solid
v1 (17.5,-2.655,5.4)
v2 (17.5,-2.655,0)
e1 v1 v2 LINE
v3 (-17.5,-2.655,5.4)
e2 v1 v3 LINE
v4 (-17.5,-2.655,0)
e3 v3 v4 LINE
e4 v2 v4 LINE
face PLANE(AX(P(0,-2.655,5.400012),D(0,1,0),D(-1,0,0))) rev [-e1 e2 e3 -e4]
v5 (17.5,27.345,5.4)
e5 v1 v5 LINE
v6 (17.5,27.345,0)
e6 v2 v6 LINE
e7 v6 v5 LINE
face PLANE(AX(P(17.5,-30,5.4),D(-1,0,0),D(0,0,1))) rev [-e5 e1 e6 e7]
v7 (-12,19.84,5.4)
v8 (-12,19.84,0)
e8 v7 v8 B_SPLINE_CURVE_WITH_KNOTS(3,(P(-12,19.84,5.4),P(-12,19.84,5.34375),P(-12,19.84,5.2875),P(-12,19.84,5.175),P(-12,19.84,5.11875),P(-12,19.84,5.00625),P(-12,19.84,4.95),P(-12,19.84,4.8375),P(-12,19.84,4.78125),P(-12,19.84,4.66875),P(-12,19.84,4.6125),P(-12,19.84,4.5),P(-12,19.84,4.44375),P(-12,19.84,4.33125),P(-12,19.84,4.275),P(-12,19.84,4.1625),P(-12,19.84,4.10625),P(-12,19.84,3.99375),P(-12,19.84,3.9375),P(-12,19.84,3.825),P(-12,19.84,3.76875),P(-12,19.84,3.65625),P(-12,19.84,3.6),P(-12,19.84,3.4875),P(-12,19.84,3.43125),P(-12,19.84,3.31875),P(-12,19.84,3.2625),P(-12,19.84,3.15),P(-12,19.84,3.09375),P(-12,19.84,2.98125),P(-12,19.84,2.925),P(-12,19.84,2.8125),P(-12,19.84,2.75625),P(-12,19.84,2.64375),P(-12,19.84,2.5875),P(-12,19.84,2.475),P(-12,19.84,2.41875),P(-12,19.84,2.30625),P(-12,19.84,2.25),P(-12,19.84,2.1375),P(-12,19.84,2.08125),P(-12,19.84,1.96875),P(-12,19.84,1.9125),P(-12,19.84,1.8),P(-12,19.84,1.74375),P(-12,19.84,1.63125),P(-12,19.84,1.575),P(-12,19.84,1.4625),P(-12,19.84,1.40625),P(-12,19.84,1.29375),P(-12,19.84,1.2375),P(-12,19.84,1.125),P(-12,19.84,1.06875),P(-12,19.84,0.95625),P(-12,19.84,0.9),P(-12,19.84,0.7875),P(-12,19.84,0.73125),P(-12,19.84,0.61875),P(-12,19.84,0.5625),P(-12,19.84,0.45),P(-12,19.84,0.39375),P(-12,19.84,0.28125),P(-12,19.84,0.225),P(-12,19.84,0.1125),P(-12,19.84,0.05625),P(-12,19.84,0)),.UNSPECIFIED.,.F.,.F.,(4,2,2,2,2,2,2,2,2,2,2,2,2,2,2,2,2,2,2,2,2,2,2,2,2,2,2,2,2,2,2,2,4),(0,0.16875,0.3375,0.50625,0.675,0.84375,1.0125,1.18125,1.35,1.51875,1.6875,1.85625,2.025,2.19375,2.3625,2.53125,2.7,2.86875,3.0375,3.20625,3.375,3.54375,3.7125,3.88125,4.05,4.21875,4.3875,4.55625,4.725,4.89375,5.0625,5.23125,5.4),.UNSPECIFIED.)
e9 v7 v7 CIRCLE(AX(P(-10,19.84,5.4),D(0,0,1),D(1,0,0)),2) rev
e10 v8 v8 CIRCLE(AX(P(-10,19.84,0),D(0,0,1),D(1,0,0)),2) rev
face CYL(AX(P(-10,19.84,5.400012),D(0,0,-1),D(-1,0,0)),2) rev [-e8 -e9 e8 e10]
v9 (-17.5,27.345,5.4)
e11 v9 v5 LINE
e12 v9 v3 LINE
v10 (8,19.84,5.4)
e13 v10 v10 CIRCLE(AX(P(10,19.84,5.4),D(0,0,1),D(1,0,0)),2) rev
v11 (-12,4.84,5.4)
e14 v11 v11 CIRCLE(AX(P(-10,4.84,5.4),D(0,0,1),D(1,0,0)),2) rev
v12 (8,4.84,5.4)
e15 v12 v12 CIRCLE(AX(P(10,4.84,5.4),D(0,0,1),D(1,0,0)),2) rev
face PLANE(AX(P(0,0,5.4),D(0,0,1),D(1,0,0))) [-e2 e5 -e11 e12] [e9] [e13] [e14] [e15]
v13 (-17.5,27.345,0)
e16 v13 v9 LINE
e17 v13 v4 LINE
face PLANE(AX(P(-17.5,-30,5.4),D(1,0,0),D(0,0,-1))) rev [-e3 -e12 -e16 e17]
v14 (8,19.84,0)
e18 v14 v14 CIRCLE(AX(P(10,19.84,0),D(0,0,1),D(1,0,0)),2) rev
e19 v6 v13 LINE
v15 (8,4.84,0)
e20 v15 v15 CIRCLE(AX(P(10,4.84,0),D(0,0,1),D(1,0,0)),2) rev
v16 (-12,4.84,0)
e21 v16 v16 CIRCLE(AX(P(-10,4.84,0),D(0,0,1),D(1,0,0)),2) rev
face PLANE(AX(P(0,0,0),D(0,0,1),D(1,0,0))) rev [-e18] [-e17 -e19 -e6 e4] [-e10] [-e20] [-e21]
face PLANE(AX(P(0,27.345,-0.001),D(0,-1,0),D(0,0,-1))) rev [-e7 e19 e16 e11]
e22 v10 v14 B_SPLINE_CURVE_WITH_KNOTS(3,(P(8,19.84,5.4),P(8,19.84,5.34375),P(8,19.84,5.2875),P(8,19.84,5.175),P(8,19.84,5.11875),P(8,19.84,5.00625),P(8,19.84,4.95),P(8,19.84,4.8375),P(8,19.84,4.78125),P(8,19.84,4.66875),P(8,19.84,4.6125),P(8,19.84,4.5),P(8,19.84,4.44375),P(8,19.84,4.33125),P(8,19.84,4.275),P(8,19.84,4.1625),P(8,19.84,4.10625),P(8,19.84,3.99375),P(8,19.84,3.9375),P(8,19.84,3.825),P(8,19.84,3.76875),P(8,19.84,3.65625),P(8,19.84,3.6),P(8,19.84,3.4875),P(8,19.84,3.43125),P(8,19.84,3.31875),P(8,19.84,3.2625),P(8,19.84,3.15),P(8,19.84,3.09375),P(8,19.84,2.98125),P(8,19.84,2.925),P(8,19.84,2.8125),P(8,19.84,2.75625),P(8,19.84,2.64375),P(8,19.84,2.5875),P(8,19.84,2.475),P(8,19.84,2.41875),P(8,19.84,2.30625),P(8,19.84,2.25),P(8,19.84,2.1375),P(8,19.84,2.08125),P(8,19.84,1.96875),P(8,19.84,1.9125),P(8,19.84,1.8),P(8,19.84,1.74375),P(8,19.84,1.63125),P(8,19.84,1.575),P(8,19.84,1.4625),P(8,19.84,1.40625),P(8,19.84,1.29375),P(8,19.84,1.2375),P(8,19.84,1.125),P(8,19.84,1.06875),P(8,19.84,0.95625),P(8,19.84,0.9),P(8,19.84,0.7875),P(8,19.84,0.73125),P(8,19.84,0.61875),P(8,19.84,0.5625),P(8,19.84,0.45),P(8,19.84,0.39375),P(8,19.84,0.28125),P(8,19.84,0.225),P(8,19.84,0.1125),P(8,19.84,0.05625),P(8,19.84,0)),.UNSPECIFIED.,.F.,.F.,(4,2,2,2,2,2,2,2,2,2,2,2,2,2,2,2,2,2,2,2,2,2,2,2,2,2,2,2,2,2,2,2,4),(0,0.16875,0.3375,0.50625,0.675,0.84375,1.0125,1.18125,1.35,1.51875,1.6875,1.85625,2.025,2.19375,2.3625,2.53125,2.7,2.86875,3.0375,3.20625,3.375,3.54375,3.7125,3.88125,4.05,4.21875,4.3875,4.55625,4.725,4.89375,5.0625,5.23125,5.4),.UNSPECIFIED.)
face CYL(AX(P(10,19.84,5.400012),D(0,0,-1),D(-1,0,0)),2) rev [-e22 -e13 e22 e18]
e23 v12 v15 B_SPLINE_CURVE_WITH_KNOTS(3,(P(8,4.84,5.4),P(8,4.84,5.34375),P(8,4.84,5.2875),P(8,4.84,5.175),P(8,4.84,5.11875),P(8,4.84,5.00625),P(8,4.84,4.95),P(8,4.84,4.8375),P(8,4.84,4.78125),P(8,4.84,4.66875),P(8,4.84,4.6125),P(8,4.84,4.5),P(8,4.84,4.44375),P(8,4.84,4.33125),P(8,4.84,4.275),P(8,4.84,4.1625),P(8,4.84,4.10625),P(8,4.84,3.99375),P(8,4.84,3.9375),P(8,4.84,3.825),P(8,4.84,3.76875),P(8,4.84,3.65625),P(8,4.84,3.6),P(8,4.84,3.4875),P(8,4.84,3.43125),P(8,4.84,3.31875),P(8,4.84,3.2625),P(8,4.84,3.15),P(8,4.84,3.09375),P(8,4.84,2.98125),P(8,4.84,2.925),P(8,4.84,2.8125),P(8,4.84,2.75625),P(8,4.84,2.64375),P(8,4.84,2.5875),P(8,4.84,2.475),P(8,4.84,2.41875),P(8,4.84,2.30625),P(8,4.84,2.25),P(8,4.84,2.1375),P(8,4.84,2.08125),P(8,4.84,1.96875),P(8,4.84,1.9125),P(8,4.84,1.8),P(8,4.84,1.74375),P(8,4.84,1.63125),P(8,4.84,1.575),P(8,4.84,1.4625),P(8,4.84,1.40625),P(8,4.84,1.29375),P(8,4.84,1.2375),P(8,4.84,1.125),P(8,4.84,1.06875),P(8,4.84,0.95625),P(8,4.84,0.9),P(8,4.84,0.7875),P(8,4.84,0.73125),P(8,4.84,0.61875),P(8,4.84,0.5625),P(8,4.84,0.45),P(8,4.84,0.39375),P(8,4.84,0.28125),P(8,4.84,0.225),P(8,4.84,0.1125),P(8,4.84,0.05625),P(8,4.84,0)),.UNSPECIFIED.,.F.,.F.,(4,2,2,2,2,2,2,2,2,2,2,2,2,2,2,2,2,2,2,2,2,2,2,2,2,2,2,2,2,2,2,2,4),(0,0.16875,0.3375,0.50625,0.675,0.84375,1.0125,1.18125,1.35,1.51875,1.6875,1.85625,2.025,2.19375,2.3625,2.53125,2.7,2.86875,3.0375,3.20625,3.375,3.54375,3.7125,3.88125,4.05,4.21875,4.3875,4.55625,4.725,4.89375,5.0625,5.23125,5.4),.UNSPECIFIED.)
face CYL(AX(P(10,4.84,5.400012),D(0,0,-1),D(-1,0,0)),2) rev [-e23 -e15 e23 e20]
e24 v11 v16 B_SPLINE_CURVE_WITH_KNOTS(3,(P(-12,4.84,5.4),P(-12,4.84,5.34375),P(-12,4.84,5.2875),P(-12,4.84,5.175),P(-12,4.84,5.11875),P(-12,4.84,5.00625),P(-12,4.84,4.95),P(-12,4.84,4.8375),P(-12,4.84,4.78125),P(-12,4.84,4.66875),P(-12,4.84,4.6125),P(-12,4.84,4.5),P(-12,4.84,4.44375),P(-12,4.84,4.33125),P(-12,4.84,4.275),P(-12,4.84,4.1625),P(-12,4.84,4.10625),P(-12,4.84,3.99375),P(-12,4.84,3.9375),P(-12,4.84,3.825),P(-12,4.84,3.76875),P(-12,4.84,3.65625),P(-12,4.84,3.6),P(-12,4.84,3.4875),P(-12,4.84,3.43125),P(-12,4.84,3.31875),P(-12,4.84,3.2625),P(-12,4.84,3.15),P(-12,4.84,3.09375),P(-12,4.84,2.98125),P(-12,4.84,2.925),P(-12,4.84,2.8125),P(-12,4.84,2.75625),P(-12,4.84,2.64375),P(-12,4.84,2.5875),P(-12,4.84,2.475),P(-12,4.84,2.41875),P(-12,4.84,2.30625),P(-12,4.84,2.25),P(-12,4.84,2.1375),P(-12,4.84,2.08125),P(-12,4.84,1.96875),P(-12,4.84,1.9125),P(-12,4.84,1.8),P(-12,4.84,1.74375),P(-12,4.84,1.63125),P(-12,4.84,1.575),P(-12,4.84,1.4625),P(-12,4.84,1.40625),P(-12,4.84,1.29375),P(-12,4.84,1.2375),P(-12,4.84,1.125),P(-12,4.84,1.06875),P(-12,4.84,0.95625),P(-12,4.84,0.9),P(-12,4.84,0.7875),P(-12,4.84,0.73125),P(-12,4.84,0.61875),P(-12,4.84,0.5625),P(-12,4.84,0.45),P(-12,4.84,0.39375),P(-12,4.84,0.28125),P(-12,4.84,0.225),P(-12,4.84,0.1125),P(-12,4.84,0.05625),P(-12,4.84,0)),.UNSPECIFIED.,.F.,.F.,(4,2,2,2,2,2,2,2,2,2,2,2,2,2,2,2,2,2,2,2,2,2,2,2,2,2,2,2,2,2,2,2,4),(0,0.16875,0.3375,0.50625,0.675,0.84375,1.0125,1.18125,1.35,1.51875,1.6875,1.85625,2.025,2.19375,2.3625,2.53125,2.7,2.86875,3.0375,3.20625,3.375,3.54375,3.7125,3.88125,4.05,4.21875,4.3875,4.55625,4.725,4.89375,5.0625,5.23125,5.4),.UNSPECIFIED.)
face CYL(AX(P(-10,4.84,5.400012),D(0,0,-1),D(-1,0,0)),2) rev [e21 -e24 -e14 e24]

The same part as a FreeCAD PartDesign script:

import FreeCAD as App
import Part
import Sketcher

V = App.Vector
Q = App.Units.Quantity


def add_polygon(sketch, points):
    """Adds a closed chain of lines whose ends are joined by coincident constraints."""
    first, n = sketch.GeometryCount, len(points)
    for a, b in zip(points, points[1:] + points[:1]):
        sketch.addGeometry(Part.LineSegment(App.Vector(*a, 0), App.Vector(*b, 0)), False)
    for i in range(n):
        sketch.addConstraint(Sketcher.Constraint("Coincident", first + i, 2, first + (i + 1) % n, 1))

doc = App.newDocument("Part")
body = doc.addObject("PartDesign::Body", "Body")
body.AllowCompound = True

# Sketch on XY plane
sketch1 = body.newObject("Sketcher::SketchObject", "Sketch")
sketch1.AttachmentSupport = (doc.getObject("XY_Plane"), [""])
sketch1.MapMode = "FlatFace"
add_polygon(sketch1, [(-18, 30), (-18, -30), (18, -30), (18, 30)])  # lines 0-3
sketch1.addConstraint([
    Sketcher.Constraint("Vertical", 0),
    Sketcher.Constraint("Horizontal", 1),
    Sketcher.Constraint("Vertical", 2),
    Sketcher.Constraint("Horizontal", 3),
    Sketcher.Constraint("Symmetric", 0, 2, 2, 2, -1, 1),
    Sketcher.Constraint("DistanceX", 1, 1, 1, 2, Q("35 mm")),
    Sketcher.Constraint("DistanceY", 0, 2, 0, 1, Q("60 mm")),
])
pad1 = body.newObject("PartDesign::Pad", "Pad")
pad1.Profile = sketch1
pad1.Length = 5.4

# Sketch on XY plane
sketch2 = body.newObject("Sketcher::SketchObject", "Sketch001")
sketch2.AttachmentSupport = (doc.getObject("XY_Plane"), [""])
sketch2.MapMode = "FlatFace"
sketch2.AttachmentOffset = App.Placement(V(0, 0, 5.4), App.Rotation())
add_polygon(sketch2, [(-17.5, 30), (-17.5, 27.3), (17.5, 27.3), (17.5, 30)])  # lines 0-3
sketch2.addConstraint([
    Sketcher.Constraint("Vertical", 0),
    Sketcher.Constraint("Horizontal", 1),
    Sketcher.Constraint("Vertical", 2),
    Sketcher.Constraint("Horizontal", 3),
    Sketcher.Constraint("DistanceX", 1, 1, 1, 2, Q("35 mm")),
    Sketcher.Constraint("DistanceY", -1, 1, 2, 2, Q("30 mm")),
    Sketcher.Constraint("DistanceX", 0, 2, -1, 1, Q("17.5 mm")),
    Sketcher.Constraint("DistanceY", 0, 2, 0, 1, Q("2.655 mm")),
])
pocket1 = body.newObject("PartDesign::Pocket", "Pocket")
pocket1.Profile = sketch2
pocket1.Type = "UpToFirst"

# Sketch on XY plane
sketch3 = body.newObject("Sketcher::SketchObject", "Sketch002")
sketch3.AttachmentSupport = (doc.getObject("XY_Plane"), [""])
sketch3.MapMode = "FlatFace"
sketch3.AttachmentOffset = App.Placement(V(0, 0, 5.4), App.Rotation())
sketch3.addGeometry(Part.Circle(V(-10, 19.8, 0), V(0, 0, 1), 2), False)
sketch3.addConstraint([
    Sketcher.Constraint("Diameter", 0, Q("4 mm")),
    Sketcher.Constraint("DistanceX", 0, 3, -1, 1, Q("10 mm")),
    Sketcher.Constraint("DistanceY", -1, 1, 0, 3, Q("19.84 mm")),
])
pocket2 = body.newObject("PartDesign::Pocket", "Pocket001")
pocket2.Profile = sketch3
pocket2.Type = "UpToFirst"

# Sketch on XY plane
sketch4 = body.newObject("Sketcher::SketchObject", "Sketch003")
sketch4.AttachmentSupport = (doc.getObject("XY_Plane"), [""])
sketch4.MapMode = "FlatFace"
sketch4.AttachmentOffset = App.Placement(V(0, 0, 5.4), App.Rotation())
sketch4.addGeometry(Part.Circle(V(10, 19.8, 0), V(0, 0, 1), 2), False)
sketch4.addConstraint([
    Sketcher.Constraint("Diameter", 0, Q("4 mm")),
    Sketcher.Constraint("DistanceX", -1, 1, 0, 3, Q("10 mm")),
    Sketcher.Constraint("DistanceY", -1, 1, 0, 3, Q("19.84 mm")),
])
pocket3 = body.newObject("PartDesign::Pocket", "Pocket002")
pocket3.Profile = sketch4
pocket3.Type = "UpToFirst"

# Sketch on XY plane
sketch5 = body.newObject("Sketcher::SketchObject", "Sketch004")
sketch5.AttachmentSupport = (doc.getObject("XY_Plane"), [""])
sketch5.MapMode = "FlatFace"
sketch5.AttachmentOffset = App.Placement(V(0, 0, 5.4), App.Rotation())
sketch5.addGeometry(Part.Circle(V(-10, 4.8, 0), V(0, 0, 1), 2), False)
sketch5.addConstraint([
    Sketcher.Constraint("Diameter", 0, Q("4 mm")),
    Sketcher.Constraint("DistanceX", 0, 3, -1, 1, Q("10 mm")),
    Sketcher.Constraint("DistanceY", -1, 1, 0, 3, Q("4.84 mm")),
])
pocket4 = body.newObject("PartDesign::Pocket", "Pocket003")
pocket4.Profile = sketch5
pocket4.Type = "UpToFirst"

# Sketch on XY plane
sketch6 = body.newObject("Sketcher::SketchObject", "Sketch005")
sketch6.AttachmentSupport = (doc.getObject("XY_Plane"), [""])
sketch6.MapMode = "FlatFace"
sketch6.AttachmentOffset = App.Placement(V(0, 0, 5.4), App.Rotation())
sketch6.addGeometry(Part.Circle(V(10, 4.8, 0), V(0, 0, 1), 2), False)
sketch6.addConstraint([
    Sketcher.Constraint("Diameter", 0, Q("4 mm")),
    Sketcher.Constraint("DistanceX", -1, 1, 0, 3, Q("10 mm")),
    Sketcher.Constraint("DistanceY", -1, 1, 0, 3, Q("4.84 mm")),
])
pocket5 = body.newObject("PartDesign::Pocket", "Pocket004")
pocket5.Profile = sketch6
pocket5.Type = "UpToFirst"

# Sketch on XY plane
sketch7 = body.newObject("Sketcher::SketchObject", "Sketch006")
sketch7.AttachmentSupport = (doc.getObject("XY_Plane"), [""])
sketch7.MapMode = "FlatFace"
sketch7.AttachmentOffset = App.Placement(V(0, 0, 5.4), App.Rotation())
add_polygon(sketch7, [(-18, -3), (-18, -20), (18, -20), (18, -3)])  # lines 0-3
sketch7.addConstraint([
    Sketcher.Constraint("Vertical", 0),
    Sketcher.Constraint("Horizontal", 1),
    Sketcher.Constraint("Vertical", 2),
    Sketcher.Constraint("Horizontal", 3),
    Sketcher.Constraint("DistanceX", 1, 1, 1, 2, Q("35 mm")),
    Sketcher.Constraint("DistanceX", 0, 2, -1, 1, Q("17.5 mm")),
    Sketcher.Constraint("DistanceY", 2, 2, -1, 1, Q("2.655 mm")),
    Sketcher.Constraint("DistanceY", 0, 2, 0, 1, Q("17.637244 mm")),
])
pocket6 = body.newObject("PartDesign::Pocket", "Pocket005")
pocket6.Profile = sketch7
pocket6.Type = "UpToFirst"

# Sketch on XY plane
sketch8 = body.newObject("Sketcher::SketchObject", "Sketch007")
sketch8.AttachmentSupport = (doc.getObject("XY_Plane"), [""])
sketch8.MapMode = "FlatFace"
sketch8.AttachmentOffset = App.Placement(V(0, 0, 5.4), App.Rotation())
add_polygon(sketch8, [(-18, -20), (-18, -30), (18, -30), (18, -20)])  # lines 0-3
sketch8.addConstraint([
    Sketcher.Constraint("Vertical", 0),
    Sketcher.Constraint("Horizontal", 1),
    Sketcher.Constraint("Vertical", 2),
    Sketcher.Constraint("Horizontal", 3),
    Sketcher.Constraint("DistanceX", 1, 1, 1, 2, Q("35 mm")),
    Sketcher.Constraint("DistanceY", 0, 2, -1, 1, Q("30 mm")),
    Sketcher.Constraint("DistanceX", 0, 2, -1, 1, Q("17.5 mm")),
    Sketcher.Constraint("DistanceY", 0, 2, 0, 1, Q("9.707756 mm")),
])
pocket7 = body.newObject("PartDesign::Pocket", "Pocket006")
pocket7.Profile = sketch8
pocket7.Type = "UpToFirst"

# Sketch on XY plane
sketch9 = body.newObject("Sketcher::SketchObject", "Sketch008")
sketch9.AttachmentSupport = (doc.getObject("XY_Plane"), [""])
sketch9.MapMode = "FlatFace"
sketch9.AttachmentOffset = App.Placement(V(0, 0, 5.4), App.Rotation())
add_polygon(sketch9, [(-17.5, 30), (-17.5, 27.3), (17.5, 27.3), (17.5, 30)])  # lines 0-3
sketch9.addGeometry(Part.Circle(V(-10, 19.8, 0), V(0, 0, 1), 2), False)  # 4
sketch9.addGeometry(Part.Circle(V(10, 19.8, 0), V(0, 0, 1), 2), False)  # 5
sketch9.addGeometry(Part.Circle(V(-10, 4.8, 0), V(0, 0, 1), 2), False)  # 6
sketch9.addGeometry(Part.Circle(V(10, 4.8, 0), V(0, 0, 1), 2), False)  # 7
add_polygon(sketch9, [(-17.5, -2.7), (-17.5, -30), (17.5, -30), (17.5, -2.7)])  # lines 8-11
sketch9.addConstraint([
    Sketcher.Constraint("Vertical", 0),
    Sketcher.Constraint("Horizontal", 1),
    Sketcher.Constraint("Vertical", 2),
    Sketcher.Constraint("Horizontal", 3),
    Sketcher.Constraint("Vertical", 8),
    Sketcher.Constraint("Horizontal", 9),
    Sketcher.Constraint("Vertical", 10),
    Sketcher.Constraint("Horizontal", 11),
    Sketcher.Constraint("Equal", 4, 5),
    Sketcher.Constraint("Equal", 5, 6),
    Sketcher.Constraint("Equal", 6, 7),
    Sketcher.Constraint("Symmetric", 2, 2, 8, 2, -1, 1),
    Sketcher.Constraint("Symmetric", 4, 3, 5, 3, -2),
    Sketcher.Constraint("Symmetric", 6, 3, 7, 3, -2),
    Sketcher.Constraint("Vertical", 4, 3, 6, 3),
    Sketcher.Constraint("Vertical", 3, 2, 8, 2),
    Sketcher.Constraint("Vertical", 2, 2, 9, 2),
    Sketcher.Constraint("Diameter", 4, Q("4 mm")),
    Sketcher.Constraint("DistanceX", 1, 1, 1, 2, Q("35 mm")),
    Sketcher.Constraint("DistanceX", 4, 3, -1, 1, Q("10 mm")),
    Sketcher.Constraint("DistanceY", -1, 1, 2, 2, Q("30 mm")),
    Sketcher.Constraint("DistanceY", 6, 3, 4, 3, Q("15 mm")),
    Sketcher.Constraint("DistanceY", 10, 2, 1, 2, Q("30 mm")),
    Sketcher.Constraint("DistanceY", 0, 2, 0, 1, Q("2.655 mm")),
    Sketcher.Constraint("DistanceY", -1, 1, 4, 3, Q("19.84 mm")),
])
pocket8 = body.newObject("PartDesign::Pocket", "Pocket007")
pocket8.Profile = sketch9
pocket8.Length = 36.1484
pocket8.Reversed = True

doc.recompute()
